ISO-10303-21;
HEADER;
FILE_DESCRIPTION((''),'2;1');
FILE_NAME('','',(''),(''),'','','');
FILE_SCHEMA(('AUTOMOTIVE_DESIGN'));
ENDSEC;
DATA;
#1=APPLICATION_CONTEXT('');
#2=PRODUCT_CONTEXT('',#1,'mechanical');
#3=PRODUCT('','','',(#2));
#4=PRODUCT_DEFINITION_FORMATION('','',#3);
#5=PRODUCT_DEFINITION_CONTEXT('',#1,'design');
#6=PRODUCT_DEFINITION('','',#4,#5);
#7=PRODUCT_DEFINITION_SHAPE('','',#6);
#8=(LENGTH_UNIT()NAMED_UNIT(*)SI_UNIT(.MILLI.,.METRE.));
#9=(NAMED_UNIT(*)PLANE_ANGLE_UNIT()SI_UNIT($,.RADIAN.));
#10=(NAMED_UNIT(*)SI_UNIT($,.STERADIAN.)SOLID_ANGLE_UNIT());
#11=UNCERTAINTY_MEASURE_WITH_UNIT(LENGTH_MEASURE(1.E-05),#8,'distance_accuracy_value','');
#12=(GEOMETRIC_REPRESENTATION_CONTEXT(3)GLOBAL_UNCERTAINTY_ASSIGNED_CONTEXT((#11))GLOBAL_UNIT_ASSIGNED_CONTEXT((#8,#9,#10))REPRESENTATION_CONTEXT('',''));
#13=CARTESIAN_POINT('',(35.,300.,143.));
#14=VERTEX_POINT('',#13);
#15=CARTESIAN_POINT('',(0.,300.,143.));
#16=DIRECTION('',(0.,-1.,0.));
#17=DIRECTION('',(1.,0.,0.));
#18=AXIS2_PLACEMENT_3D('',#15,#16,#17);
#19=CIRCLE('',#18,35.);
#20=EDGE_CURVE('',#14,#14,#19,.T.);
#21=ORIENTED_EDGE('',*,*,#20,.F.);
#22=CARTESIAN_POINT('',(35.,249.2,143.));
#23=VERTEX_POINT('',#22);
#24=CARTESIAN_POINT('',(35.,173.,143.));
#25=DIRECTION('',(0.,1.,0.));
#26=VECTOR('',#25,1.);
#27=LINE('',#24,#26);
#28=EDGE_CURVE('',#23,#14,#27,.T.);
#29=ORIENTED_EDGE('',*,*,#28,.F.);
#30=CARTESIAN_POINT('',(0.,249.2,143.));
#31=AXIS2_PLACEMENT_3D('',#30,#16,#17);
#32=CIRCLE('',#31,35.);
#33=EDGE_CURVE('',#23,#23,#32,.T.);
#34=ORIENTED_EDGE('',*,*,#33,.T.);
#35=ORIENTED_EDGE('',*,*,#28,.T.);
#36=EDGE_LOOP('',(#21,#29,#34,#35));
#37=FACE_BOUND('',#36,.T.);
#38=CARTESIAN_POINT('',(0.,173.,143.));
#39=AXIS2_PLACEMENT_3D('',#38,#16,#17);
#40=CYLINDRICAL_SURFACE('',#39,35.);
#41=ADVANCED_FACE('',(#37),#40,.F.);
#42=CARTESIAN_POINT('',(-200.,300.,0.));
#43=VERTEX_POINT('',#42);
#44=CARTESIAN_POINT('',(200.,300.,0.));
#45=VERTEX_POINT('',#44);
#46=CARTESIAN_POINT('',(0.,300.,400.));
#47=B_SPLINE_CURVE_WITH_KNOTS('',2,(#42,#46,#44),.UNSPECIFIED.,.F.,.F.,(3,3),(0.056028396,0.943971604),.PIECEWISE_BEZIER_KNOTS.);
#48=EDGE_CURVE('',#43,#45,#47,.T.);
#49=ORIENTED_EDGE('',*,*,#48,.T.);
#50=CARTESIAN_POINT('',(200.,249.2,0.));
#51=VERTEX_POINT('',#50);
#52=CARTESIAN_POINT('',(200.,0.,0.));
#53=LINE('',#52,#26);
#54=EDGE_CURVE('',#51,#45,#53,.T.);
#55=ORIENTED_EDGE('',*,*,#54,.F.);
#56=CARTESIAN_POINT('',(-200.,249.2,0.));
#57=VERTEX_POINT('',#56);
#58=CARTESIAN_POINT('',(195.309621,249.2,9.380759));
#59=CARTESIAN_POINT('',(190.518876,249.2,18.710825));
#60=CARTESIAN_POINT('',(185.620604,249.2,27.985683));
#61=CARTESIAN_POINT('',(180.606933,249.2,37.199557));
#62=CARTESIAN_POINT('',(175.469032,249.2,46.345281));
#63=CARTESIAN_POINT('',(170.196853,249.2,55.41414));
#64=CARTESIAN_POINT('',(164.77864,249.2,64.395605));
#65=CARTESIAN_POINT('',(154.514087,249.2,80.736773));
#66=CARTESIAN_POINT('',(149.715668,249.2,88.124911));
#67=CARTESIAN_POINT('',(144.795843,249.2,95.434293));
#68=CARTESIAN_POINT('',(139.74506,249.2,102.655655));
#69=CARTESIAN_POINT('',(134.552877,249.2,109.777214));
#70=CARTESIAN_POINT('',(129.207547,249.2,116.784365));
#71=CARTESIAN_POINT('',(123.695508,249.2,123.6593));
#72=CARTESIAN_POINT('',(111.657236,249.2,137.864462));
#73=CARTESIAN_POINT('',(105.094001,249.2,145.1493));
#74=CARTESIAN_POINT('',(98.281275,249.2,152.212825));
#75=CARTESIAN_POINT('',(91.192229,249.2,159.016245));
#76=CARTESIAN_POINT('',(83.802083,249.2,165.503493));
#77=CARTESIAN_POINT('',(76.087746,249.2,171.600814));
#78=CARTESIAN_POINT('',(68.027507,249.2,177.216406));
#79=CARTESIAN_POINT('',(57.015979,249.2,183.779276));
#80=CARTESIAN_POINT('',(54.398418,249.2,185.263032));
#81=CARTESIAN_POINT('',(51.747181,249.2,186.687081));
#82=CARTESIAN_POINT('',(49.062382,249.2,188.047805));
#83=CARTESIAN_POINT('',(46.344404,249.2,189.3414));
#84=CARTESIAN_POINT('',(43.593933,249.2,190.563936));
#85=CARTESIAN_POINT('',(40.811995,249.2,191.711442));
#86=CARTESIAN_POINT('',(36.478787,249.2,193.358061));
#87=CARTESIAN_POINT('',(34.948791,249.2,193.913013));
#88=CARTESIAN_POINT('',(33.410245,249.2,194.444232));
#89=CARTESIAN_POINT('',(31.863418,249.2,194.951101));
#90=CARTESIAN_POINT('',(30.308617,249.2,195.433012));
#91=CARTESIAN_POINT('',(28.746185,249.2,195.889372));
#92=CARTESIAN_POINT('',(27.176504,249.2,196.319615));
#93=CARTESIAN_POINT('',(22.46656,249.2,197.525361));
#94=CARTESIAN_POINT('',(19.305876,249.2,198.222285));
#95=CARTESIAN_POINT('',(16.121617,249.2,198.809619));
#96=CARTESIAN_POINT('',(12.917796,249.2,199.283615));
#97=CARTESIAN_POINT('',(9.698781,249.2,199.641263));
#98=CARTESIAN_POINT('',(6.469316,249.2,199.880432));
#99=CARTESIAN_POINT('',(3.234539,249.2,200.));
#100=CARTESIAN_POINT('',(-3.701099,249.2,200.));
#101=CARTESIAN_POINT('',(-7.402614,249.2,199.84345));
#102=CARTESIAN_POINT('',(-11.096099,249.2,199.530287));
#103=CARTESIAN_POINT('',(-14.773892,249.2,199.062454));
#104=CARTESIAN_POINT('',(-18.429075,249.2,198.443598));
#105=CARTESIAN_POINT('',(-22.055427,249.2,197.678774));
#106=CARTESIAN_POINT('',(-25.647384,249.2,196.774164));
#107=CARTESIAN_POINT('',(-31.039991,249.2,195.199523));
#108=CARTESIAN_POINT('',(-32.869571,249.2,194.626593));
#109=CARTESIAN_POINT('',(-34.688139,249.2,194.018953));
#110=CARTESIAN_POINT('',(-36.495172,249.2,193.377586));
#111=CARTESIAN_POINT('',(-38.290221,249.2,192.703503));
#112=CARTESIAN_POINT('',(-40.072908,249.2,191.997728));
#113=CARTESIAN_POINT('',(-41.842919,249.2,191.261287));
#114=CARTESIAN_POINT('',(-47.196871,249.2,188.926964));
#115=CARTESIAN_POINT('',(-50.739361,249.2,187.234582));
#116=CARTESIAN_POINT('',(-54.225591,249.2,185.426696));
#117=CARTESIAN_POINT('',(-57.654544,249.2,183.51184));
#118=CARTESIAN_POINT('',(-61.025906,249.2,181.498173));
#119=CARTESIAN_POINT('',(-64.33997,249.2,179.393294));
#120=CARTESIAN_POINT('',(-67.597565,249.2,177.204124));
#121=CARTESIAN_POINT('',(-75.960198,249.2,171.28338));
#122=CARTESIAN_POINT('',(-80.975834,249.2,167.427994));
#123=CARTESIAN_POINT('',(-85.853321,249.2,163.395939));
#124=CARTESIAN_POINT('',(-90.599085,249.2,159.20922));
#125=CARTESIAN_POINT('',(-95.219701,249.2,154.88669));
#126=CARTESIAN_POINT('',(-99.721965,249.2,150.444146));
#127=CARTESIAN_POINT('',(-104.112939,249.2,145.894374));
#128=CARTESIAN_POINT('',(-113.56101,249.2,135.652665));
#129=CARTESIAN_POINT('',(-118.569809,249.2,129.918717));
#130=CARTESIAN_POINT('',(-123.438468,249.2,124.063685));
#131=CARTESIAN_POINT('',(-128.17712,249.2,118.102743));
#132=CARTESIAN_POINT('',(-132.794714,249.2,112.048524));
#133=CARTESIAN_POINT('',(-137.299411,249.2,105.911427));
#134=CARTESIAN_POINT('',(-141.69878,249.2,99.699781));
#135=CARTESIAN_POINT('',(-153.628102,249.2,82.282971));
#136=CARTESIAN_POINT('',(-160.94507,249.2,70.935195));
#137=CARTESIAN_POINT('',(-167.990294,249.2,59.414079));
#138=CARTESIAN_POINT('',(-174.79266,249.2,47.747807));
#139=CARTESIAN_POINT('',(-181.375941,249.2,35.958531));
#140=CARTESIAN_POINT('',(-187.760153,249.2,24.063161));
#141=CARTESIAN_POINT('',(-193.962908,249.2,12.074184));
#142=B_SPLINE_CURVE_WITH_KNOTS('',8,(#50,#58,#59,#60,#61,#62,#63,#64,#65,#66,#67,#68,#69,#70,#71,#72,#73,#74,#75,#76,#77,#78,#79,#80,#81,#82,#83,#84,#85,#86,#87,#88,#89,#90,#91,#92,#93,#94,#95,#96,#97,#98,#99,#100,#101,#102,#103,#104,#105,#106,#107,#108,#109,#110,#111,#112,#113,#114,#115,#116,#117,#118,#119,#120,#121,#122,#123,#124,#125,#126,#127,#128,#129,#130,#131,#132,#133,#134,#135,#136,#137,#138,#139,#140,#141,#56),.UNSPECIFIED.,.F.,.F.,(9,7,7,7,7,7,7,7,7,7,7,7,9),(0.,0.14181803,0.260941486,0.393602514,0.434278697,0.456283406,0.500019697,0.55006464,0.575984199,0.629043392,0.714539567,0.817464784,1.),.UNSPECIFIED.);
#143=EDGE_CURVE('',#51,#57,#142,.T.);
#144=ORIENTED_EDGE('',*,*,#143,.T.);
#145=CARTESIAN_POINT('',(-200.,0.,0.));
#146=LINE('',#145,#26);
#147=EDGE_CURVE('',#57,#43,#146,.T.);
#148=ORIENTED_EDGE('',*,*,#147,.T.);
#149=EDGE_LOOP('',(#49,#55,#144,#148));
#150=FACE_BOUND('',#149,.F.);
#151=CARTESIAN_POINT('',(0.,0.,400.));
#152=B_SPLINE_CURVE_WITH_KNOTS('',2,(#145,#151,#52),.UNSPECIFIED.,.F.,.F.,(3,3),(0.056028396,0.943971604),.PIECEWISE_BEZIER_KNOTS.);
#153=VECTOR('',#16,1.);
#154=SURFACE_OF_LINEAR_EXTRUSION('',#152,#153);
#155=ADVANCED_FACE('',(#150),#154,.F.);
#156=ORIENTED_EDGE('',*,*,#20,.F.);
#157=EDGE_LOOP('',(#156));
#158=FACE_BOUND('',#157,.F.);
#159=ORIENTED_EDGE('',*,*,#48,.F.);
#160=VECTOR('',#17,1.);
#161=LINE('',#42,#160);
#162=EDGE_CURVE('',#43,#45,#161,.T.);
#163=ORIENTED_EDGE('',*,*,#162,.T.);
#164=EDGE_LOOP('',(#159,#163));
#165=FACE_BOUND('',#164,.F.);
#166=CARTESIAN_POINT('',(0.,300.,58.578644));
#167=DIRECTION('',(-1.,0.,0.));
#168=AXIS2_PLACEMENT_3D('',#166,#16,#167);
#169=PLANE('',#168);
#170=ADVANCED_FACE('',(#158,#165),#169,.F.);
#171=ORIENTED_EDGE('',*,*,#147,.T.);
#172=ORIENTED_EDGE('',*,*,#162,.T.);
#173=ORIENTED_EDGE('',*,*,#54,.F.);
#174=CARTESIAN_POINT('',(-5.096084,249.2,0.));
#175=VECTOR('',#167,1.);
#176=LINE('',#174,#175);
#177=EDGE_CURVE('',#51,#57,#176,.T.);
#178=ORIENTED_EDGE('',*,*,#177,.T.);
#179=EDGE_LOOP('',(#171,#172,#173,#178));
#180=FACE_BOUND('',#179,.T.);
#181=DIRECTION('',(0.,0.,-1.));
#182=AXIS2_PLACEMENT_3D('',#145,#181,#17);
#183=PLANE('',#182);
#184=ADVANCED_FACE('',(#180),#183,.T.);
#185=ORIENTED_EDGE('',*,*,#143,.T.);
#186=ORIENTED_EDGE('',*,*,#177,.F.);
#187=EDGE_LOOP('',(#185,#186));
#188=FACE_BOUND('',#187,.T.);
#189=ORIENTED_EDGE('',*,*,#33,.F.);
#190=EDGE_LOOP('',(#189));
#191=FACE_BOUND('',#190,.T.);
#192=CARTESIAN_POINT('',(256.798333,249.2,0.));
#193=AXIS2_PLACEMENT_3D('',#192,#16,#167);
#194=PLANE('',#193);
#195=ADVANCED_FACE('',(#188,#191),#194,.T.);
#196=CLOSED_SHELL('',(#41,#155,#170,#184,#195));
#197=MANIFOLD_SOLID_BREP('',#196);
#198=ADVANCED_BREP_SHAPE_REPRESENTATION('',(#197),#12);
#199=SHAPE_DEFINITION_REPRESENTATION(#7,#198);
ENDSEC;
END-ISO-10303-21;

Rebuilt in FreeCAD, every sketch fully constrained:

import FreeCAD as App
import Part
import Sketcher

V = App.Vector
Q = App.Units.Quantity


def add_polygon(sketch, points):
    """Adds a closed chain of lines whose ends are joined by coincident constraints."""
    first, n = sketch.GeometryCount, len(points)
    for a, b in zip(points, points[1:] + points[:1]):
        sketch.addGeometry(Part.LineSegment(App.Vector(*a, 0), App.Vector(*b, 0)), False)
    for i in range(n):
        sketch.addConstraint(Sketcher.Constraint("Coincident", first + i, 2, first + (i + 1) % n, 1))

doc = App.newDocument("Part")
body = doc.addObject("PartDesign::Body", "Body")

# Sketch on XZ plane
sketch1 = body.newObject("Sketcher::SketchObject", "Sketch")
sketch1.AttachmentSupport = (doc.getObject("XZ_Plane"), [""])
sketch1.MapMode = "FlatFace"
sketch1.addGeometry(Part.LineSegment(V(200, 0, 0), V(-200, 0, 0)), False)
sketch1.addGeometry(Part.BSplineCurve([V(-200, 0, 0), V(0, 400, 0), V(200, 0, 0)], [3, 3], [0.056028396, 0.943971604], False, 2, [1, 1, 1], False), False)
sketch1.addConstraint(Sketcher.Constraint("Block", 1))
sketch1.addConstraint(Sketcher.Constraint("Coincident", 0, 1, 1, 2))
sketch1.addConstraint(Sketcher.Constraint("Coincident", 1, 1, 0, 2))
pad1 = body.newObject("PartDesign::Pad", "Pad")
pad1.Profile = sketch1
pad1.Length = 300
pad1.Reversed = True

# Sketch on XZ plane
sketch2 = body.newObject("Sketcher::SketchObject", "Sketch001")
sketch2.AttachmentSupport = (doc.getObject("XZ_Plane"), [""])
sketch2.MapMode = "FlatFace"
sketch2.AttachmentOffset = App.Placement(V(0, 0, -150), App.Rotation())
sketch2.addGeometry(Part.Circle(V(0, 143, 0), V(0, 0, 1), 16), False)
sketch2.addConstraint(Sketcher.Constraint("PointOnObject", 0, 3, -2))
sketch2.addConstraint(Sketcher.Constraint("Diameter", 0, Q("31 mm")))
sketch2.addConstraint(Sketcher.Constraint("DistanceY", -1, 1, 0, 3, Q("143 mm")))
pocket1 = body.newObject("PartDesign::Pocket", "Pocket")
pocket1.Profile = sketch2
pocket1.Type = "TwoLengths"
pocket1.Length = 23
pocket1.Length2 = 23

# Sketch on XZ plane
sketch3 = body.newObject("Sketcher::SketchObject", "Sketch002")
sketch3.AttachmentSupport = (doc.getObject("XZ_Plane"), [""])
sketch3.MapMode = "FlatFace"
sketch3.AttachmentOffset = App.Placement(V(0, 0, -173), App.Rotation())
sketch3.addGeometry(Part.Circle(V(0, 143, 0), V(0, 0, 1), 35), False)
sketch3.addConstraint(Sketcher.Constraint("PointOnObject", 0, 3, -2))
sketch3.addConstraint(Sketcher.Constraint("Diameter", 0, Q("70 mm")))
sketch3.addConstraint(Sketcher.Constraint("DistanceY", -1, 1, 0, 3, Q("143 mm")))
pocket2 = body.newObject("PartDesign::Pocket", "Pocket001")
pocket2.Profile = sketch3
pocket2.Length = 300
doc.recompute()

datumplane = body.newObject("PartDesign::Plane", "DatumPlane")
datumplane.AttachmentSupport = (doc.getObject("XZ_Plane"), [""])
datumplane.MapMode = "FlatFace"
datumplane.AttachmentOffset = App.Placement(V(0, 0, -150), App.Rotation())
mirrored = body.newObject("PartDesign::Mirrored", "Mirrored")
mirrored.Originals = [pocket2]
mirrored.MirrorPlane = (datumplane, [""])
body.Tip = mirrored

# Sketch on XY plane
sketch4 = body.newObject("Sketcher::SketchObject", "Sketch003")
sketch4.AttachmentSupport = (doc.getObject("XY_Plane"), [""])
sketch4.MapMode = "FlatFace"
add_polygon(sketch4, [(257, 249), (257, -15), (-267, -15), (-267, 249)])  # lines 0-3
sketch4.addConstraint(Sketcher.Constraint("Vertical", 0))
sketch4.addConstraint(Sketcher.Constraint("Horizontal", 1))
sketch4.addConstraint(Sketcher.Constraint("Vertical", 2))
sketch4.addConstraint(Sketcher.Constraint("Horizontal", 3))
sketch4.addConstraint(Sketcher.Constraint("DistanceY", -1, 1, 2, 2, Q("249.2 mm")))
sketch4.addConstraint(Sketcher.Constraint("DistanceX", 1, 2, -1, 1, Q("266.990502 mm")))
sketch4.addConstraint(Sketcher.Constraint("DistanceX", 1, 2, 1, 1, Q("523.788835 mm")))
sketch4.addConstraint(Sketcher.Constraint("DistanceY", 0, 2, 0, 1, Q("264.110106 mm")))
pocket3 = body.newObject("PartDesign::Pocket", "Pocket002")
pocket3.Profile = sketch4
pocket3.Length = 300
pocket3.Reversed = True

doc.recompute()
